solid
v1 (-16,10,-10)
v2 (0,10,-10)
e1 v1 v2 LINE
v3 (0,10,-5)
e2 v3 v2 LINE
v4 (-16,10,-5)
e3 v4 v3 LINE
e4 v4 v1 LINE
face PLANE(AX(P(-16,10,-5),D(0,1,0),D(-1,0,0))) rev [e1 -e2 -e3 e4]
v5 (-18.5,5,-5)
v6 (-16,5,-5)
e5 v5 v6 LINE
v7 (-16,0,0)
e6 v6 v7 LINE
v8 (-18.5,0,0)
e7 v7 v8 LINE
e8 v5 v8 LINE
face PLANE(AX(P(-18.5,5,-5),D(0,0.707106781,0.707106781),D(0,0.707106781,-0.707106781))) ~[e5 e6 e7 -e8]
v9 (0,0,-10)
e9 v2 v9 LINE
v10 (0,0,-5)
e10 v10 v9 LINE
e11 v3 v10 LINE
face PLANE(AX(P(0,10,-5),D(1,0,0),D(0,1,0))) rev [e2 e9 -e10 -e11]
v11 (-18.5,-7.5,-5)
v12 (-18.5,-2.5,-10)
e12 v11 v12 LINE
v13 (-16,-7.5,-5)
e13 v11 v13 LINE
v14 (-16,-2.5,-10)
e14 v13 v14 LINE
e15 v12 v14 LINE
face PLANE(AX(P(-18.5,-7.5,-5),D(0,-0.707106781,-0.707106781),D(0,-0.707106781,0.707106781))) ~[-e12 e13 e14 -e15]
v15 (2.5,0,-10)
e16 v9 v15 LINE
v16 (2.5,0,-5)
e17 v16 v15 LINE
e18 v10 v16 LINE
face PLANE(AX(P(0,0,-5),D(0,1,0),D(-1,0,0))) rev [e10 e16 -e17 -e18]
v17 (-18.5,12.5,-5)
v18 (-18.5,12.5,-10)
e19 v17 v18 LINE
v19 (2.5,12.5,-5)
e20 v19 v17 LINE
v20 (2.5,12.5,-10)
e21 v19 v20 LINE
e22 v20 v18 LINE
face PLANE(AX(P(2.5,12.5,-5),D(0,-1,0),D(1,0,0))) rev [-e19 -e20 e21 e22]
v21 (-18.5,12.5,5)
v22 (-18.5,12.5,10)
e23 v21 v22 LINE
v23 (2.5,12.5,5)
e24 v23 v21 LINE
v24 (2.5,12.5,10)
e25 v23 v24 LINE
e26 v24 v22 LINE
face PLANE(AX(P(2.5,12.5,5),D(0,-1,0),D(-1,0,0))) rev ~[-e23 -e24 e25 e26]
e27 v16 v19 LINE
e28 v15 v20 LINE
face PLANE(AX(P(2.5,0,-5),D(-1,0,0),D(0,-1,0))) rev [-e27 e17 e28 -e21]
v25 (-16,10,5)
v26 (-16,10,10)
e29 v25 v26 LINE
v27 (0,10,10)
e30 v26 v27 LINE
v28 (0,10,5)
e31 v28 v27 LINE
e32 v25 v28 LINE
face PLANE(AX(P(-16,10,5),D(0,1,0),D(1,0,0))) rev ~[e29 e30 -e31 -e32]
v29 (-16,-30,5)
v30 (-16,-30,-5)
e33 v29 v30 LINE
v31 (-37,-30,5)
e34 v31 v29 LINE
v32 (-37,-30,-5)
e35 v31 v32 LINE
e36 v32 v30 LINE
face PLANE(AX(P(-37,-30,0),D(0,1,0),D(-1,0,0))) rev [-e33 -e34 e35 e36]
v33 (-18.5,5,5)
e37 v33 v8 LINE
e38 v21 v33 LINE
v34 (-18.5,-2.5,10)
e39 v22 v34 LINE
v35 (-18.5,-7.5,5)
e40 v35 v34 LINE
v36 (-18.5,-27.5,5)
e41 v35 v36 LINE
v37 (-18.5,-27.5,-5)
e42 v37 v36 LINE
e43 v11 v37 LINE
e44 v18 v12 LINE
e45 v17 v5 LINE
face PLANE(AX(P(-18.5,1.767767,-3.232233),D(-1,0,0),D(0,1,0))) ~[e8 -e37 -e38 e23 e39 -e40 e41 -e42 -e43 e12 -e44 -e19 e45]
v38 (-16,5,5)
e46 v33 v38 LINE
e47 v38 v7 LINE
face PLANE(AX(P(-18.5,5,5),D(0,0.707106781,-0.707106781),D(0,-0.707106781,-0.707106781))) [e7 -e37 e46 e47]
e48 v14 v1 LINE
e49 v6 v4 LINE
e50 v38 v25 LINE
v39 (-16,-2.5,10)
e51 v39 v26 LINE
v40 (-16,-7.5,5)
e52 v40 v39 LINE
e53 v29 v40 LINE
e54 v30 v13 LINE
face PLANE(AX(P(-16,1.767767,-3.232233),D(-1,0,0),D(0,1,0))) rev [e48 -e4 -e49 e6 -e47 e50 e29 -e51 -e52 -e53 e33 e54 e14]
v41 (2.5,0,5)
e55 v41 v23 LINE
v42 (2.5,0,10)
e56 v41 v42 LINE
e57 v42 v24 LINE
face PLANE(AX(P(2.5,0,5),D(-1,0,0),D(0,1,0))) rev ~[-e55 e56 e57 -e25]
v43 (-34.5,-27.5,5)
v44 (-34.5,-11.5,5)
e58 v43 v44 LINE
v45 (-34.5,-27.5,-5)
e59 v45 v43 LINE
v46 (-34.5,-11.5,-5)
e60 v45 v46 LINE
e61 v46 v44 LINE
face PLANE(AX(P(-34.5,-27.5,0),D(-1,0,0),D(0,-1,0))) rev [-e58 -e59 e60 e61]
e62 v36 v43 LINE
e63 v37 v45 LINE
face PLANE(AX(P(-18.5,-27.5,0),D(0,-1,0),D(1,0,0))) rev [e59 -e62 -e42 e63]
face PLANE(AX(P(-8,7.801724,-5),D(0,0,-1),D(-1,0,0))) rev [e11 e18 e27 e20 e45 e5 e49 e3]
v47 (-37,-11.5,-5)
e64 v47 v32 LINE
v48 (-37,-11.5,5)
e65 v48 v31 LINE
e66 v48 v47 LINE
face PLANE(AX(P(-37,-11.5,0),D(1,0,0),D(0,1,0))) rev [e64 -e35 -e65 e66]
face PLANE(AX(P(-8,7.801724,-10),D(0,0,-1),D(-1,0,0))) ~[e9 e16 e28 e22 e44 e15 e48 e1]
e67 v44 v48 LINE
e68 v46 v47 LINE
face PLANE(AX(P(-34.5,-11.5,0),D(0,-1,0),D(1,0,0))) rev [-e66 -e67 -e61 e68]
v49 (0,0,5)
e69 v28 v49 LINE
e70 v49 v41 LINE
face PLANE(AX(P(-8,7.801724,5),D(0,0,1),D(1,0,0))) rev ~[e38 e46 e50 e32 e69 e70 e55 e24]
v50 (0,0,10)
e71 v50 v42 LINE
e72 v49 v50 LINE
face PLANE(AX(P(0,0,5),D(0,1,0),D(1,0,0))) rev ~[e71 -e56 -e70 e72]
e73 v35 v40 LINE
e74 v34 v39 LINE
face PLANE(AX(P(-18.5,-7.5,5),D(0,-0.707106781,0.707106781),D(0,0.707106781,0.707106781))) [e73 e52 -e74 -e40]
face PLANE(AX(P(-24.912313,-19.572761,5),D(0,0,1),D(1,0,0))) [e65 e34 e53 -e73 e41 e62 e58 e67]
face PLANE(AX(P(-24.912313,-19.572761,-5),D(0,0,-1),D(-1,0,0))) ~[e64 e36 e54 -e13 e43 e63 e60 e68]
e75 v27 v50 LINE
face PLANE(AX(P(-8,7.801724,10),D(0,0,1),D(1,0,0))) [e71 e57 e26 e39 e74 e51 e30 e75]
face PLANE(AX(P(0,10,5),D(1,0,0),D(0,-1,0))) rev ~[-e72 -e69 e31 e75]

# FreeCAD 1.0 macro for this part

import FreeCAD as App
import Part
import Sketcher


def add_polygon(sketch, points):
    """Adds a closed chain of lines whose ends are joined by coincident constraints."""
    first, n = sketch.GeometryCount, len(points)
    for a, b in zip(points, points[1:] + points[:1]):
        sketch.addGeometry(Part.LineSegment(App.Vector(*a, 0), App.Vector(*b, 0)), False)
    for i in range(n):
        sketch.addConstraint(Sketcher.Constraint("Coincident", first + i, 2, first + (i + 1) % n, 1))

doc = App.newDocument("Part")
body = doc.addObject("PartDesign::Body", "Body")

sketch1 = body.newObject("Sketcher::SketchObject", "Sketch")
sketch1.AttachmentSupport = (doc.getObject("XY_Plane"), [""])
sketch1.MapMode = "FlatFace"
add_polygon(sketch1, [(-16, -30), (-16, 0), (-18.5, 0), (-18.5, -27.5), (-34.5, -27.5), (-34.5, -11.5), (-37, -11.5), (-37, -30)])
sketch1.addConstraint(Sketcher.Constraint("Vertical", 0))
sketch1.addConstraint(Sketcher.Constraint("Horizontal", 1))
sketch1.addConstraint(Sketcher.Constraint("Vertical", 2))
sketch1.addConstraint(Sketcher.Constraint("Horizontal", 3))
sketch1.addConstraint(Sketcher.Constraint("Vertical", 4))
sketch1.addConstraint(Sketcher.Constraint("Horizontal", 5))
sketch1.addConstraint(Sketcher.Constraint("Vertical", 6))
sketch1.addConstraint(Sketcher.Constraint("Horizontal", 7))
sketch1.addConstraint(Sketcher.Constraint("PointOnObject", 0, 2, -1))
sketch1.addConstraint(Sketcher.Constraint("Equal", 1, 5))
sketch1.addConstraint(Sketcher.Constraint("Equal", 3, 4))
sketch1.addConstraint(Sketcher.Constraint("DistanceX", 3, 2, 3, 1, 16.0))
sketch1.addConstraint(Sketcher.Constraint("DistanceX", 7, 1, 7, 2, 21.0))
sketch1.addConstraint(Sketcher.Constraint("DistanceY", 0, 1, 0, 2, 30.0))
sketch1.addConstraint(Sketcher.Constraint("DistanceY", 2, 2, 2, 1, 27.5))
sketch1.addConstraint(Sketcher.Constraint("DistanceX", 0, 2, -1, 1, 16.0))
pad1 = body.newObject("PartDesign::Pad", "Pad")
pad1.Profile = sketch1
pad1.Length = 5

sketch2 = body.newObject("Sketcher::SketchObject", "Sketch001")
sketch2.AttachmentSupport = (doc.getObject("XY_Plane"), [""])
sketch2.MapMode = "FlatFace"
sketch2.AttachmentOffset = App.Placement(App.Vector(0, 0, 5), App.Rotation())
add_polygon(sketch2, [(2.5, 12.5), (-18.5, 12.5), (-18.5, -2.5), (-16, -2.5), (-16, 10), (0, 10), (0, 0), (2.5, 0)])
sketch2.addConstraint(Sketcher.Constraint("Horizontal", 0))
sketch2.addConstraint(Sketcher.Constraint("Vertical", 1))
sketch2.addConstraint(Sketcher.Constraint("Horizontal", 2))
sketch2.addConstraint(Sketcher.Constraint("Vertical", 3))
sketch2.addConstraint(Sketcher.Constraint("Horizontal", 4))
sketch2.addConstraint(Sketcher.Constraint("Vertical", 5))
sketch2.addConstraint(Sketcher.Constraint("Horizontal", 6))
sketch2.addConstraint(Sketcher.Constraint("Vertical", 7))
sketch2.addConstraint(Sketcher.Constraint("Coincident", 5, 2, -1, 1))
sketch2.addConstraint(Sketcher.Constraint("Equal", 2, 6))
sketch2.addConstraint(Sketcher.Constraint("Equal", 3, 7))
sketch2.addConstraint(Sketcher.Constraint("DistanceX", 0, 2, 0, 1, 21.0))
sketch2.addConstraint(Sketcher.Constraint("DistanceX", 4, 1, 4, 2, 16.0))
sketch2.addConstraint(Sketcher.Constraint("DistanceY", 1, 2, 1, 1, 15.0))
sketch2.addConstraint(Sketcher.Constraint("DistanceY", 5, 2, 5, 1, 10.0))
pad2 = body.newObject("PartDesign::Pad", "Pad001")
pad2.Profile = sketch2
pad2.Length = 5

sketch3 = body.newObject("Sketcher::SketchObject", "Sketch002")
sketch3.AttachmentSupport = (doc.getObject("YZ_Plane"), [""])
sketch3.MapMode = "FlatFace"
sketch3.AttachmentOffset = App.Placement(App.Vector(0, 0, -18.5), App.Rotation())
add_polygon(sketch3, [(0, 5), (5, 5), (0, 0)])
add_polygon(sketch3, [(-8, 5), (-2, 10), (-2, 5)])
sketch3.addConstraint(Sketcher.Constraint("Horizontal", 0))
sketch3.addConstraint(Sketcher.Constraint("Vertical", 2))
sketch3.addConstraint(Sketcher.Constraint("Vertical", 4))
sketch3.addConstraint(Sketcher.Constraint("Horizontal", 5))
sketch3.addConstraint(Sketcher.Constraint("Coincident", 1, 2, -1, 1))
sketch3.addConstraint(Sketcher.Constraint("Parallel", 1, 3))
sketch3.addConstraint(Sketcher.Constraint("Horizontal", 2, 2, 4, 2))
sketch3.addConstraint(Sketcher.Constraint("Equal", 0, 5))
sketch3.addConstraint(Sketcher.Constraint("Equal", 5, 2))
sketch3.addConstraint(Sketcher.Constraint("DistanceX", 0, 1, 0, 2, 5.0))
sketch3.addConstraint(Sketcher.Constraint("DistanceX", 3, 2, -1, 1, 2.5))
pad3 = body.newObject("PartDesign::Pad", "Pad002")
pad3.Profile = sketch3
pad3.Type = "UpToLast"
body2 = doc.addObject("PartDesign::Body", "Body001")
doc.recompute()

body2.BaseFeature = body
doc.recompute()

mirroring = doc.addObject("Part::Mirroring", "Mirroring")
mirroring.Source = body
mirroring.Base = App.Vector(0, 0, 0)
mirroring.Normal = App.Vector(0, 0, 1)
body3 = doc.addObject("PartDesign::Body", "Body002")
body3.BaseFeature = mirroring
boolean = body2.newObject("PartDesign::Boolean", "Boolean")
boolean.Type = "Fuse"
boolean.addObjects([body3])
doc.recompute()
mirroring.Visibility = False

doc.recompute()
